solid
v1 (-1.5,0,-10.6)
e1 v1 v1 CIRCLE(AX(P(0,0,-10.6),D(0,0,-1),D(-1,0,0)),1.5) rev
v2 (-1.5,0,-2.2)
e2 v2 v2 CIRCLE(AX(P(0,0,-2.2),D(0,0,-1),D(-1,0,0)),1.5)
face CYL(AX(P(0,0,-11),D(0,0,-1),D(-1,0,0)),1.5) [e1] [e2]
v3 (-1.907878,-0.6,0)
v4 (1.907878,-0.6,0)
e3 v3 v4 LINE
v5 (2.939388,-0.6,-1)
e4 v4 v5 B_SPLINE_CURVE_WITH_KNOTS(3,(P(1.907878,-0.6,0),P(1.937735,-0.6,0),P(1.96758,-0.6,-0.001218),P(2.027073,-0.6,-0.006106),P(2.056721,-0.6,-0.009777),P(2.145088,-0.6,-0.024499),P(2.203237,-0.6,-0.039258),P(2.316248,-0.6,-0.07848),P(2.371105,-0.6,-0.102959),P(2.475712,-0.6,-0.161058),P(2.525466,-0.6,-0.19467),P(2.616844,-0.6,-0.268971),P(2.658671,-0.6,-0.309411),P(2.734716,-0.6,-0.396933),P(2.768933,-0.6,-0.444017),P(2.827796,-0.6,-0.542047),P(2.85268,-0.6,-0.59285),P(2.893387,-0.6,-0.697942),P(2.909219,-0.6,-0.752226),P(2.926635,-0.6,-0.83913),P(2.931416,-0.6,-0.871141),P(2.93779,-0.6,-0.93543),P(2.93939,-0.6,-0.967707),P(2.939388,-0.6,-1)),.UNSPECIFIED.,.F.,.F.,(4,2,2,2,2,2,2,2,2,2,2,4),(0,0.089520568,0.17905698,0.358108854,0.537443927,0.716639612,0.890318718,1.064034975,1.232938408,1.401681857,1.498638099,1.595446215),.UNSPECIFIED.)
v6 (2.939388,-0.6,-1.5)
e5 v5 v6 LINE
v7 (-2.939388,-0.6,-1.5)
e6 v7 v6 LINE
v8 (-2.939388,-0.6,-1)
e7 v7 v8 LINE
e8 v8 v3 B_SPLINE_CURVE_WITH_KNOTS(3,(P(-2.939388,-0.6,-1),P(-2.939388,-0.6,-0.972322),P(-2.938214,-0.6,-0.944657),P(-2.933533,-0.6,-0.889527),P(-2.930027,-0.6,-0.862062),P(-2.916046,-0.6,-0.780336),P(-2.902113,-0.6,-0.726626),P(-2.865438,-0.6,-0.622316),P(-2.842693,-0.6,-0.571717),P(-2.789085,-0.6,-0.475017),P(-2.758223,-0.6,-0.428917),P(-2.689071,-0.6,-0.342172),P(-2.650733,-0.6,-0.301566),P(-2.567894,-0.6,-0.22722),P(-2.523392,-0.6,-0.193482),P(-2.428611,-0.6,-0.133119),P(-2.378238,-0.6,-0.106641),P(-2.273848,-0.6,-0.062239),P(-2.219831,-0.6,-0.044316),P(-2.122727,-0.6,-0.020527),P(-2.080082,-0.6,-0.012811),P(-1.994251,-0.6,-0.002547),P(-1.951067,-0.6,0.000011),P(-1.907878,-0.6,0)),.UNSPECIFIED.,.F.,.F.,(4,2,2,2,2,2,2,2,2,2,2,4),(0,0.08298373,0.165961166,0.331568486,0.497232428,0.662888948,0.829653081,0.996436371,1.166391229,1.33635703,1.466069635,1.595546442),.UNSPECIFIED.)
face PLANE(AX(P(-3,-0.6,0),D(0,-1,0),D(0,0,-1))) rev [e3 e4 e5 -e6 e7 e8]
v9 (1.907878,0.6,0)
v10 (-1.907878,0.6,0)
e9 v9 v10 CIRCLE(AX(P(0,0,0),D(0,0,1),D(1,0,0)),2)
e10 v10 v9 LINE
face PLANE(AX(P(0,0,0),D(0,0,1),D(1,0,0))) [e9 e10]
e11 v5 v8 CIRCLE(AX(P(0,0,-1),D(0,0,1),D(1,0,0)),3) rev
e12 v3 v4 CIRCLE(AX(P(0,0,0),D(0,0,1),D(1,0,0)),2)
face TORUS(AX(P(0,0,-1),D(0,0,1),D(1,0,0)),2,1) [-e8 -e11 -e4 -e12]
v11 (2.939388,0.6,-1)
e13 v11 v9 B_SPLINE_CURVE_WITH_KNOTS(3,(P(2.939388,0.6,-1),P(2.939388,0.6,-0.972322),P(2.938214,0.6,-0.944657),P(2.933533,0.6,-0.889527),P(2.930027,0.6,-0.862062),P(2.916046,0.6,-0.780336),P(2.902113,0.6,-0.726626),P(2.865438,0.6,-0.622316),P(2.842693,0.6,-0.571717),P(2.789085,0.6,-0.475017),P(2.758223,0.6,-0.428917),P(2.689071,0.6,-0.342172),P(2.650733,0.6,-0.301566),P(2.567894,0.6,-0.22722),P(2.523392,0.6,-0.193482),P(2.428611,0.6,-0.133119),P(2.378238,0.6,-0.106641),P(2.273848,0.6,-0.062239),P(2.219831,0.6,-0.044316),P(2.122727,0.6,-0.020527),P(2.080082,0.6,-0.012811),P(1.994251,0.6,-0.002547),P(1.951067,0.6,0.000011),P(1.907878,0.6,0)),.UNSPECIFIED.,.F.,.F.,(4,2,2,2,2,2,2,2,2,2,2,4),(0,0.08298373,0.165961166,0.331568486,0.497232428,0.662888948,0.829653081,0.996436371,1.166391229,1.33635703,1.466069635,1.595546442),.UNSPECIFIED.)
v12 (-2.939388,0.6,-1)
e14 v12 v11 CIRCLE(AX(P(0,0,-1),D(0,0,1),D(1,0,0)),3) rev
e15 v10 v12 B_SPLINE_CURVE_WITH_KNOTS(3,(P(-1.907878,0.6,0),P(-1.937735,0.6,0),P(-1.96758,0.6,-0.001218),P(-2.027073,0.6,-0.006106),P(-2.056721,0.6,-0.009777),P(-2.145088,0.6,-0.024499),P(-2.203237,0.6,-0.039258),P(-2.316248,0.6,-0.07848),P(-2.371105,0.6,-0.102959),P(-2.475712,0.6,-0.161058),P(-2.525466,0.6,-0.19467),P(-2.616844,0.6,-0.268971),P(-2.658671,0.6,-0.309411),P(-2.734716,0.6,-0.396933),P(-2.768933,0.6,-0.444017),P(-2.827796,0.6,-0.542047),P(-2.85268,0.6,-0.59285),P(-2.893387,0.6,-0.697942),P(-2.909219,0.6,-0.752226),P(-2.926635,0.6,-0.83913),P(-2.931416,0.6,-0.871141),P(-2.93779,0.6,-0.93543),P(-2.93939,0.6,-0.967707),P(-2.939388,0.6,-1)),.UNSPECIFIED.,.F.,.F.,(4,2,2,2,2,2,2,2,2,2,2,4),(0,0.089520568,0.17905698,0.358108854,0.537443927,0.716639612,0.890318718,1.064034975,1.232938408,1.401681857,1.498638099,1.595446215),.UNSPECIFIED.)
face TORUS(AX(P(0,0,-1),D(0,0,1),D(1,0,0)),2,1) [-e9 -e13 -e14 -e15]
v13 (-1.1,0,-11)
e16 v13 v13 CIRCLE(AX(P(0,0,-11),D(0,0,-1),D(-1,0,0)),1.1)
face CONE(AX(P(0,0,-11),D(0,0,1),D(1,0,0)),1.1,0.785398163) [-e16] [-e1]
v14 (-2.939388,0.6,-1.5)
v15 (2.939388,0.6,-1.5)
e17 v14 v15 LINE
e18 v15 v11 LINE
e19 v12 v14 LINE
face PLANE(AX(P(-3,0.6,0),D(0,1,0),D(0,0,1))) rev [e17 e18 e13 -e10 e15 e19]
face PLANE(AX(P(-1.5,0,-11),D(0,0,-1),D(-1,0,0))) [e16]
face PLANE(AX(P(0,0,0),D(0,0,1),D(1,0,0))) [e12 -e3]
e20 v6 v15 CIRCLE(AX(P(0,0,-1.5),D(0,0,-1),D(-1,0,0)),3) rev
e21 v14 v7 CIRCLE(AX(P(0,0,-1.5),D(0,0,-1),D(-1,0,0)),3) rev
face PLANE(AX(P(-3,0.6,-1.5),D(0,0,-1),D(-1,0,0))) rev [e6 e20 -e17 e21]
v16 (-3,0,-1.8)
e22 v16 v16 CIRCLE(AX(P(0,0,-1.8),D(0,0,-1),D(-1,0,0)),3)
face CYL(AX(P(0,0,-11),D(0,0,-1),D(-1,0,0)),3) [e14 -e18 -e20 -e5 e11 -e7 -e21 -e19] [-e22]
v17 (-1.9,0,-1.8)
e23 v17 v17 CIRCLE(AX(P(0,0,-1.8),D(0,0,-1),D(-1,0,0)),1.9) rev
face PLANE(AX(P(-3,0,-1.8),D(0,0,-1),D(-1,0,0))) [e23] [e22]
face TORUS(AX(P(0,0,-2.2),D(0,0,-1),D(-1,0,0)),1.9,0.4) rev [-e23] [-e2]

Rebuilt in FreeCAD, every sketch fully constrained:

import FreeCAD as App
import Part
import Sketcher
from FreeCAD import Vector
Q = App.Units.Quantity


def edges_at(feature, points):
    """Names of the edges that pass closest to the given points."""
    edges = feature.Shape.Edges
    near = lambda p: min(range(len(edges)), key=lambda i: edges[i].distToShape(Part.Vertex(*p))[0])
    return sorted({f"Edge{near(p) + 1}" for p in points})


def add_polygon(sketch, points):
    """Adds a closed chain of lines whose ends are joined by coincident constraints."""
    first, n = sketch.GeometryCount, len(points)
    for a, b in zip(points, points[1:] + points[:1]):
        sketch.addGeometry(Part.LineSegment(App.Vector(*a, 0), App.Vector(*b, 0)), False)
    for i in range(n):
        sketch.addConstraint(Sketcher.Constraint("Coincident", first + i, 2, first + (i + 1) % n, 1))

doc = App.newDocument("Part")
body = doc.addObject("PartDesign::Body", "Body")

# Sketch on XZ plane
sketch1 = body.newObject("Sketcher::SketchObject", "Sketch")
sketch1.AttachmentSupport = (doc.getObject("XZ_Plane"), [""])
sketch1.MapMode = "FlatFace"
add_polygon(sketch1, [(-3, 0), (0, 0), (0, -11), (-1.5, -11), (-1.5, -1.8), (-3, -1.8)])  # lines 0-5
sketch1.addConstraint([
    Sketcher.Constraint("Horizontal", 0),
    Sketcher.Constraint("Vertical", 1),
    Sketcher.Constraint("Horizontal", 2),
    Sketcher.Constraint("Vertical", 3),
    Sketcher.Constraint("Horizontal", 4),
    Sketcher.Constraint("Vertical", 5),
    Sketcher.Constraint("Coincident", 0, 2, -1, 1),
    Sketcher.Constraint("Equal", 2, 4),
    Sketcher.Constraint("DistanceX", 0, 1, 0, 2, Q("3 mm")),
    Sketcher.Constraint("DistanceY", 1, 2, 1, 1, Q("11 mm")),
    Sketcher.Constraint("DistanceY", 3, 1, 3, 2, Q("9.2 mm")),
])
revolution = body.newObject("PartDesign::Revolution", "Revolution")
revolution.Profile = sketch1
revolution.ReferenceAxis = (sketch1, ["V_Axis"])
revolution.Angle = 360

# Sketch on YZ plane
sketch2 = body.newObject("Sketcher::SketchObject", "Sketch001")
sketch2.AttachmentSupport = (doc.getObject("YZ_Plane"), [""])
sketch2.MapMode = "FlatFace"
add_polygon(sketch2, [(0.6, 0), (-0.6, 0), (-0.6, -1.5), (0.6, -1.5)])  # lines 0-3
sketch2.addConstraint([
    Sketcher.Constraint("Horizontal", 0),
    Sketcher.Constraint("Vertical", 1),
    Sketcher.Constraint("Horizontal", 2),
    Sketcher.Constraint("Vertical", 3),
    Sketcher.Constraint("Symmetric", 0, 2, 3, 2, -1, 1),
    Sketcher.Constraint("DistanceX", 0, 2, 0, 1, Q("1.2 mm")),
    Sketcher.Constraint("DistanceY", 1, 2, 1, 1, Q("1.5 mm")),
])
pocket1 = body.newObject("PartDesign::Pocket", "Pocket")
pocket1.Profile = sketch2
pocket1.Type = "ThroughAll"
pocket1.Midplane = True
doc.recompute()

chamfer = body.newObject("PartDesign::Chamfer", "Chamfer")
chamfer.Base = (pocket1, edges_at(pocket1, [(1.5, 0, -11)]))
chamfer.Size = 0.4
doc.recompute()

fillet = body.newObject("PartDesign::Fillet", "Fillet")
fillet.Base = (chamfer, edges_at(chamfer, [(0, 3, 0), (0, -3, 0)]))
fillet.Radius = 1
doc.recompute()

fillet2 = body.newObject("PartDesign::Fillet", "Fillet001")
fillet2.Base = (fillet, edges_at(fillet, [(1.5, 0, -1.8)]))
fillet2.Radius = 0.4

doc.recompute()
